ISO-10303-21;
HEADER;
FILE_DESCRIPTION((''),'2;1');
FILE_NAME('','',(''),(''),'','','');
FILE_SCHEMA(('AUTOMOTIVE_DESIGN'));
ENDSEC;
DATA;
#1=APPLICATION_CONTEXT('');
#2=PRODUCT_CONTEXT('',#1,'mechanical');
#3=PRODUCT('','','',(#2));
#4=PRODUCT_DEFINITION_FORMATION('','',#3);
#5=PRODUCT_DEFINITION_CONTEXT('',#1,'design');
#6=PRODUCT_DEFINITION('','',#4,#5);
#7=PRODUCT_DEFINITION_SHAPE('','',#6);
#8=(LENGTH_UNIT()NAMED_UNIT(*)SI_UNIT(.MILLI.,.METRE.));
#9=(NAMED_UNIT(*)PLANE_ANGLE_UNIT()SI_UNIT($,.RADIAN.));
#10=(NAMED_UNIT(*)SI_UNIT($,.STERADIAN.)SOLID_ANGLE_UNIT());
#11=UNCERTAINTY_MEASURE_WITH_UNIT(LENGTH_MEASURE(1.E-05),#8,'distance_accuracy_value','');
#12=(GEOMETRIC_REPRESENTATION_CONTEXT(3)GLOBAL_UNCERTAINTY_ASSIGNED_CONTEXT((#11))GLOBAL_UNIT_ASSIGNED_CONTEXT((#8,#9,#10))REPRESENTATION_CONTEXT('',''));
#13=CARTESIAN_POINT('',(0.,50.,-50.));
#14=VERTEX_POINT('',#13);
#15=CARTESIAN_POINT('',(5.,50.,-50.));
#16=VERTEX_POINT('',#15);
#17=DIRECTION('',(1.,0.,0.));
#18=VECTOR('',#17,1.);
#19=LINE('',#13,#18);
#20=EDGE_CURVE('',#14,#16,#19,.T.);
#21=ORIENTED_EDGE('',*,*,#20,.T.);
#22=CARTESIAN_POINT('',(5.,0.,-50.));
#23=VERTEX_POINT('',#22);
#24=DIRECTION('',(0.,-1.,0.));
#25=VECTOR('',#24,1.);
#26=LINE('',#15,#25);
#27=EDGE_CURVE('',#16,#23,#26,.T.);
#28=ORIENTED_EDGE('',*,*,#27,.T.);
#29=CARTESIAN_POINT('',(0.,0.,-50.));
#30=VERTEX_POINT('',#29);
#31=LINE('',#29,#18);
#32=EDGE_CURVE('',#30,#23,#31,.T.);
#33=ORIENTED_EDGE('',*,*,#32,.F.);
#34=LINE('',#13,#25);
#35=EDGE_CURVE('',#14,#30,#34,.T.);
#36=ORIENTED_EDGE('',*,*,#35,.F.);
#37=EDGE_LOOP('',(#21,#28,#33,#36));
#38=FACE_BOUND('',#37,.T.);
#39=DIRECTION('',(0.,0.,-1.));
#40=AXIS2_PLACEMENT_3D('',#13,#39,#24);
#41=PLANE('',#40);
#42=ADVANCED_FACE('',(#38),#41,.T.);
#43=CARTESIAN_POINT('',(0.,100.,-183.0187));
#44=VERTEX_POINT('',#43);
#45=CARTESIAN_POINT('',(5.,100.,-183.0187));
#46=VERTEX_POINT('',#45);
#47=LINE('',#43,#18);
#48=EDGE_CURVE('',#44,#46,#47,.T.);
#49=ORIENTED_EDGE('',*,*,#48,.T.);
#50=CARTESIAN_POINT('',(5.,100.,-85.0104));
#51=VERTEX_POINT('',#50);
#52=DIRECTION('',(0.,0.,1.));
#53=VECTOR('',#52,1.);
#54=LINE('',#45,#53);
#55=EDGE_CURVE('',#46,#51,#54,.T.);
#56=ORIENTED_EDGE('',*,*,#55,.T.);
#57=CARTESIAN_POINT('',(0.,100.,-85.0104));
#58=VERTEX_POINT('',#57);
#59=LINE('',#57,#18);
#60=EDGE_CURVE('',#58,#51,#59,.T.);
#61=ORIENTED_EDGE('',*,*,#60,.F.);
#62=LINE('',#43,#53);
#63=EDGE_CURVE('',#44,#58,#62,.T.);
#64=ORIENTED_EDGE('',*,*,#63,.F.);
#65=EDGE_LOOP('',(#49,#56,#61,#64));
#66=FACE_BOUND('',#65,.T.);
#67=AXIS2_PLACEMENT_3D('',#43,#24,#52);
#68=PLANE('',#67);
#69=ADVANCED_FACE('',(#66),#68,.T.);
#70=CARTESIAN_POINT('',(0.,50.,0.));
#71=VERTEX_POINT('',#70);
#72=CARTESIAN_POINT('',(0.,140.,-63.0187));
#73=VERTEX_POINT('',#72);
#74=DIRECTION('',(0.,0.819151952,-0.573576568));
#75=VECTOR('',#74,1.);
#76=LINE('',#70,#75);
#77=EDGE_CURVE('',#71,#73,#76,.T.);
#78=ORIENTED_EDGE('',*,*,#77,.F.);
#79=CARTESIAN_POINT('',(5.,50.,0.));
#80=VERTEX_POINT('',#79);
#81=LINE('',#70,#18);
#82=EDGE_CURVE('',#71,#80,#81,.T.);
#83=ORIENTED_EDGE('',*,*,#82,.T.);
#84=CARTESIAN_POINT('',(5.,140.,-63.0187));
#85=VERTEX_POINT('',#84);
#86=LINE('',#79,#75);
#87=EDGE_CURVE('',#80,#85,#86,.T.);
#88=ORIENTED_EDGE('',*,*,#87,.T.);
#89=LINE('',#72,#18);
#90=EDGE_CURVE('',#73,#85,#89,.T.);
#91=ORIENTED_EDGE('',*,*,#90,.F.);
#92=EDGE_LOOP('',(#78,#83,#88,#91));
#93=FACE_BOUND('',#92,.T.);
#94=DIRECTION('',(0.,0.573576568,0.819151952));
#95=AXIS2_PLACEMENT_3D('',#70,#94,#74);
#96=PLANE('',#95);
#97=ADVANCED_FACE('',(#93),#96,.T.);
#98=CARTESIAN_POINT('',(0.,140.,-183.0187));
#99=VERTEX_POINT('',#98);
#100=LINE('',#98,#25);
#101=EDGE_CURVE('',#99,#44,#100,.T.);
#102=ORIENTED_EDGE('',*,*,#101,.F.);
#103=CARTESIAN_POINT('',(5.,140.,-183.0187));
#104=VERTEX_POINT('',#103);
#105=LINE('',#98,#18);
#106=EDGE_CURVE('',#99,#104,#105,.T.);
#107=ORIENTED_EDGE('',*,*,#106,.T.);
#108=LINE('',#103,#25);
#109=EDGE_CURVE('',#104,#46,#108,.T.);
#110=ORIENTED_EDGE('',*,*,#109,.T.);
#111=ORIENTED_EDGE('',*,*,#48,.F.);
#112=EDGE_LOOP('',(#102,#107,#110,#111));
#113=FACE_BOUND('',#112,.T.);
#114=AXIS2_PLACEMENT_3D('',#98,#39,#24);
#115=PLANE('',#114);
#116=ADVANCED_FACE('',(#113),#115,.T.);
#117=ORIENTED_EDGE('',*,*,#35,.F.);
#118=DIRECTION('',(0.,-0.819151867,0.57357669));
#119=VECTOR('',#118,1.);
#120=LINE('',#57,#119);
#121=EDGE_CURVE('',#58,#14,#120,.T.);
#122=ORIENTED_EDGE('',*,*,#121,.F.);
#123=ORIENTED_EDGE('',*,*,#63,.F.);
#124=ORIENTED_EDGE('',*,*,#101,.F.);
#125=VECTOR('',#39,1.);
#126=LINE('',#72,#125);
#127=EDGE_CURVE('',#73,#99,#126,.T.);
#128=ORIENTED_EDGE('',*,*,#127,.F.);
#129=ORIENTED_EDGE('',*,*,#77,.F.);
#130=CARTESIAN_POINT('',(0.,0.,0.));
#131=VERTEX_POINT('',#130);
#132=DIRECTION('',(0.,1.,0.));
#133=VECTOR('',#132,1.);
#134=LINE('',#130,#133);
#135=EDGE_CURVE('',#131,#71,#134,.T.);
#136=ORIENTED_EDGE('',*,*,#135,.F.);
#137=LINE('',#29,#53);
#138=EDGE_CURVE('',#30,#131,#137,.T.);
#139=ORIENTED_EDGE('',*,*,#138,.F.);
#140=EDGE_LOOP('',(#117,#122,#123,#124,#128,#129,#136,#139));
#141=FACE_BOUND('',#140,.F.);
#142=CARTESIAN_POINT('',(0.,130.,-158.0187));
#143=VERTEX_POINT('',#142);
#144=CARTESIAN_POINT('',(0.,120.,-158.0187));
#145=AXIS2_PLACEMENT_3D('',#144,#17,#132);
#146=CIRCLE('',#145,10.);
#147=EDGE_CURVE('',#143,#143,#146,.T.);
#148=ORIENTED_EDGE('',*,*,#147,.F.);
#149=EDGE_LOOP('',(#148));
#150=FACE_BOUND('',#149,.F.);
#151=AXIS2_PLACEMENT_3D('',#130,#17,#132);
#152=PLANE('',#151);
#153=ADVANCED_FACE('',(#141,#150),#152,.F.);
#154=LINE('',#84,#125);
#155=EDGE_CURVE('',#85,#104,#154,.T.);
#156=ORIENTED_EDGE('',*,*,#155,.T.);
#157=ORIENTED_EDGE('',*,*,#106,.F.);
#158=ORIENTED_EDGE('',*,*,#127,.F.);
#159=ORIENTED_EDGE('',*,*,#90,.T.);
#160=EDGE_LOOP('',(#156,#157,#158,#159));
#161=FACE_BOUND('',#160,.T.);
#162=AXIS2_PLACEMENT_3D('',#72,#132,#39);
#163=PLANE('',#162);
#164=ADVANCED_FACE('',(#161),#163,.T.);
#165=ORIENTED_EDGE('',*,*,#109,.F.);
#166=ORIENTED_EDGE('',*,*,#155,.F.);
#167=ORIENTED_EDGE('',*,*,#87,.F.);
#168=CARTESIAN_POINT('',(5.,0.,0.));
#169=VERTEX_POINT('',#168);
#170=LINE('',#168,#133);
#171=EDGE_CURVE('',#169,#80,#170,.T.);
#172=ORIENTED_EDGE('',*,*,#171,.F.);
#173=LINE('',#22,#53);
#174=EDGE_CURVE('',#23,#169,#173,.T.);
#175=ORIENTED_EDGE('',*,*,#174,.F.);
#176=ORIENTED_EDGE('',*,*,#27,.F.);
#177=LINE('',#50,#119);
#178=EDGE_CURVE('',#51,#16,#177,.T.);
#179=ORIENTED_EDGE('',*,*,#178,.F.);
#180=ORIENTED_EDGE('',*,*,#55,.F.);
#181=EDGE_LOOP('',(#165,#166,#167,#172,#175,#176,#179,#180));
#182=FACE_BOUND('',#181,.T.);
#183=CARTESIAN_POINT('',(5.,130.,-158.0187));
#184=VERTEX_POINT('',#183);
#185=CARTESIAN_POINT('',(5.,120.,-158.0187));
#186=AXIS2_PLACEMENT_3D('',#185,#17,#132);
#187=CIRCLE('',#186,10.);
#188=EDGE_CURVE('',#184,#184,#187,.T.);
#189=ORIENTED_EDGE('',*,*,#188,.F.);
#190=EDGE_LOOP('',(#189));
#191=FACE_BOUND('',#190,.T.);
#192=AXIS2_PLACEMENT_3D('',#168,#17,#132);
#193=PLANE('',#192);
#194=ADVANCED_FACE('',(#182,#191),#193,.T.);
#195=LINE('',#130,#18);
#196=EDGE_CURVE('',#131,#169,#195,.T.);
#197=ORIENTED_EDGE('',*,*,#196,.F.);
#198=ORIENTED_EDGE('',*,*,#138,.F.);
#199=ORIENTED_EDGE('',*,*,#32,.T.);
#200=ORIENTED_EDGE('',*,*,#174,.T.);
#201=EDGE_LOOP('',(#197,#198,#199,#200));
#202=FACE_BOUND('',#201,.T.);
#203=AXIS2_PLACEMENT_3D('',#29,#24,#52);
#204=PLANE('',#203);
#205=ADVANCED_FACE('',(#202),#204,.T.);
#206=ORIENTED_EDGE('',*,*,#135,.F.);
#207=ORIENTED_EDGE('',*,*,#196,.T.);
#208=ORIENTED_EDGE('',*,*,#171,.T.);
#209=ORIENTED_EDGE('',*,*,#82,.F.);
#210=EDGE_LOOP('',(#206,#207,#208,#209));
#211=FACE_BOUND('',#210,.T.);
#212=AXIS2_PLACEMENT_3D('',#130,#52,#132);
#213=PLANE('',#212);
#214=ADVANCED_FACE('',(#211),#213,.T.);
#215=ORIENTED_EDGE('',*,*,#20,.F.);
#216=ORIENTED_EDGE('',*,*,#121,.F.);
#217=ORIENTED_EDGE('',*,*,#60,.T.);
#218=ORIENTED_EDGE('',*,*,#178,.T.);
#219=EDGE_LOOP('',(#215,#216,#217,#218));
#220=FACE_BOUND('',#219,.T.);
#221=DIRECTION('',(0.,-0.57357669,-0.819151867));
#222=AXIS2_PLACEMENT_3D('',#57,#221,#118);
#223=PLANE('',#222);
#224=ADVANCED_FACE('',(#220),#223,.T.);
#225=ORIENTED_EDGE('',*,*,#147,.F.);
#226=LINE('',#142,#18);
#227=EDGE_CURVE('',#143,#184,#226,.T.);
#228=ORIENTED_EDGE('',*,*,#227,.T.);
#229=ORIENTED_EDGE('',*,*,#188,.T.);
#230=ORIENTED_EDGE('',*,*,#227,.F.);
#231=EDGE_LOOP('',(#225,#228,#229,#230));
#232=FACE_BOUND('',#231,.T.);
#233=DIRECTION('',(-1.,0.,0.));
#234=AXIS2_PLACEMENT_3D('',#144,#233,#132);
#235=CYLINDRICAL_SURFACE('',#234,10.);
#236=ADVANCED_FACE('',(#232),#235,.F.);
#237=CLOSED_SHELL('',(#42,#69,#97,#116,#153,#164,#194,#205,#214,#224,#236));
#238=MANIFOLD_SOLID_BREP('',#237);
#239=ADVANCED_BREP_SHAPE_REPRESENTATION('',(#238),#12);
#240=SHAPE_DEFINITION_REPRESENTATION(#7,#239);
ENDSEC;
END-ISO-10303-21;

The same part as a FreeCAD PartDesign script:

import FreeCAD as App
import Part
import Sketcher

V = App.Vector
Q = App.Units.Quantity


def add_polygon(sketch, points):
    """Adds a closed chain of lines whose ends are joined by coincident constraints."""
    first, n = sketch.GeometryCount, len(points)
    for a, b in zip(points, points[1:] + points[:1]):
        sketch.addGeometry(Part.LineSegment(App.Vector(*a, 0), App.Vector(*b, 0)), False)
    for i in range(n):
        sketch.addConstraint(Sketcher.Constraint("Coincident", first + i, 2, first + (i + 1) % n, 1))

doc = App.newDocument("Part")
params = doc.addObject("Spreadsheet::Sheet", "Params")
for row, (alias, value) in enumerate([
    ("sketch1_diameter", "20 mm"),
    ("sketch1_width", "50 mm"),
    ("sketch1_width2", "40 mm"),
    ("sketch1_height", "120 mm"),
    ("pad1_length", "5 mm"),
], start=1):
    params.set(f"A{row}", alias)
    params.set(f"B{row}", "=" + value)
    params.setAlias(f"B{row}", alias)

body = doc.addObject("PartDesign::Body", "Body")

# Sketch on YZ plane
sketch1 = doc.addObject("Sketcher::SketchObject", "Sketch")
body.addObject(sketch1)
sketch1.AttachmentSupport = (doc.YZ_Plane, [""])
sketch1.MapMode = "FlatFace"
add_polygon(sketch1, [(50, 0), (0, 0), (0, -50), (50, -50), (100, -85), (100, -183), (140, -183), (140, -63)])  # lines 0-7
sketch1.addGeometry(Part.Circle(V(120, -158, 0), V(0, 0, 1), 10), False)  # 8
sketch1.addConstraint([
    Sketcher.Constraint("Horizontal", 0),
    Sketcher.Constraint("Vertical", 1),
    Sketcher.Constraint("Horizontal", 2),
    Sketcher.Constraint("Vertical", 4),
    Sketcher.Constraint("Horizontal", 5),
    Sketcher.Constraint("Vertical", 6),
    Sketcher.Constraint("Coincident", 0, 2, -1, 1),
    Sketcher.Constraint("Parallel", 3, 7),
    Sketcher.Constraint("Vertical", 2, 2, 7, 2),
    Sketcher.Constraint("Equal", 2, 1),
    Sketcher.Constraint("Diameter", 8, Q("20 mm")),
    Sketcher.Constraint("DistanceX", 0, 2, 0, 1, Q("50 mm")),
    Sketcher.Constraint("DistanceX", 5, 1, 5, 2, Q("40 mm")),
    Sketcher.Constraint("DistanceY", 6, 1, 6, 2, Q("120 mm")),
    Sketcher.Constraint("DistanceX", -1, 1, 8, 3, Q("120 mm")),
    Sketcher.Constraint("DistanceX", 2, 2, 3, 2, Q("50 mm")),
    Sketcher.Constraint("DistanceY", 4, 2, 8, 3, Q("25 mm")),
    Sketcher.Constraint("Angle", 3, Q("-35 deg")),
])
sketch1.setExpression("Constraints[18]", "Params.sketch1_diameter")
sketch1.setExpression("Constraints[19]", "Params.sketch1_width")
sketch1.setExpression("Constraints[20]", "Params.sketch1_width2")
sketch1.setExpression("Constraints[21]", "Params.sketch1_height")
pad1 = doc.addObject("PartDesign::Pad", "Pad")
body.addObject(pad1)
pad1.Profile = sketch1
pad1.setExpression("Length", "Params.pad1_length")

doc.recompute()
